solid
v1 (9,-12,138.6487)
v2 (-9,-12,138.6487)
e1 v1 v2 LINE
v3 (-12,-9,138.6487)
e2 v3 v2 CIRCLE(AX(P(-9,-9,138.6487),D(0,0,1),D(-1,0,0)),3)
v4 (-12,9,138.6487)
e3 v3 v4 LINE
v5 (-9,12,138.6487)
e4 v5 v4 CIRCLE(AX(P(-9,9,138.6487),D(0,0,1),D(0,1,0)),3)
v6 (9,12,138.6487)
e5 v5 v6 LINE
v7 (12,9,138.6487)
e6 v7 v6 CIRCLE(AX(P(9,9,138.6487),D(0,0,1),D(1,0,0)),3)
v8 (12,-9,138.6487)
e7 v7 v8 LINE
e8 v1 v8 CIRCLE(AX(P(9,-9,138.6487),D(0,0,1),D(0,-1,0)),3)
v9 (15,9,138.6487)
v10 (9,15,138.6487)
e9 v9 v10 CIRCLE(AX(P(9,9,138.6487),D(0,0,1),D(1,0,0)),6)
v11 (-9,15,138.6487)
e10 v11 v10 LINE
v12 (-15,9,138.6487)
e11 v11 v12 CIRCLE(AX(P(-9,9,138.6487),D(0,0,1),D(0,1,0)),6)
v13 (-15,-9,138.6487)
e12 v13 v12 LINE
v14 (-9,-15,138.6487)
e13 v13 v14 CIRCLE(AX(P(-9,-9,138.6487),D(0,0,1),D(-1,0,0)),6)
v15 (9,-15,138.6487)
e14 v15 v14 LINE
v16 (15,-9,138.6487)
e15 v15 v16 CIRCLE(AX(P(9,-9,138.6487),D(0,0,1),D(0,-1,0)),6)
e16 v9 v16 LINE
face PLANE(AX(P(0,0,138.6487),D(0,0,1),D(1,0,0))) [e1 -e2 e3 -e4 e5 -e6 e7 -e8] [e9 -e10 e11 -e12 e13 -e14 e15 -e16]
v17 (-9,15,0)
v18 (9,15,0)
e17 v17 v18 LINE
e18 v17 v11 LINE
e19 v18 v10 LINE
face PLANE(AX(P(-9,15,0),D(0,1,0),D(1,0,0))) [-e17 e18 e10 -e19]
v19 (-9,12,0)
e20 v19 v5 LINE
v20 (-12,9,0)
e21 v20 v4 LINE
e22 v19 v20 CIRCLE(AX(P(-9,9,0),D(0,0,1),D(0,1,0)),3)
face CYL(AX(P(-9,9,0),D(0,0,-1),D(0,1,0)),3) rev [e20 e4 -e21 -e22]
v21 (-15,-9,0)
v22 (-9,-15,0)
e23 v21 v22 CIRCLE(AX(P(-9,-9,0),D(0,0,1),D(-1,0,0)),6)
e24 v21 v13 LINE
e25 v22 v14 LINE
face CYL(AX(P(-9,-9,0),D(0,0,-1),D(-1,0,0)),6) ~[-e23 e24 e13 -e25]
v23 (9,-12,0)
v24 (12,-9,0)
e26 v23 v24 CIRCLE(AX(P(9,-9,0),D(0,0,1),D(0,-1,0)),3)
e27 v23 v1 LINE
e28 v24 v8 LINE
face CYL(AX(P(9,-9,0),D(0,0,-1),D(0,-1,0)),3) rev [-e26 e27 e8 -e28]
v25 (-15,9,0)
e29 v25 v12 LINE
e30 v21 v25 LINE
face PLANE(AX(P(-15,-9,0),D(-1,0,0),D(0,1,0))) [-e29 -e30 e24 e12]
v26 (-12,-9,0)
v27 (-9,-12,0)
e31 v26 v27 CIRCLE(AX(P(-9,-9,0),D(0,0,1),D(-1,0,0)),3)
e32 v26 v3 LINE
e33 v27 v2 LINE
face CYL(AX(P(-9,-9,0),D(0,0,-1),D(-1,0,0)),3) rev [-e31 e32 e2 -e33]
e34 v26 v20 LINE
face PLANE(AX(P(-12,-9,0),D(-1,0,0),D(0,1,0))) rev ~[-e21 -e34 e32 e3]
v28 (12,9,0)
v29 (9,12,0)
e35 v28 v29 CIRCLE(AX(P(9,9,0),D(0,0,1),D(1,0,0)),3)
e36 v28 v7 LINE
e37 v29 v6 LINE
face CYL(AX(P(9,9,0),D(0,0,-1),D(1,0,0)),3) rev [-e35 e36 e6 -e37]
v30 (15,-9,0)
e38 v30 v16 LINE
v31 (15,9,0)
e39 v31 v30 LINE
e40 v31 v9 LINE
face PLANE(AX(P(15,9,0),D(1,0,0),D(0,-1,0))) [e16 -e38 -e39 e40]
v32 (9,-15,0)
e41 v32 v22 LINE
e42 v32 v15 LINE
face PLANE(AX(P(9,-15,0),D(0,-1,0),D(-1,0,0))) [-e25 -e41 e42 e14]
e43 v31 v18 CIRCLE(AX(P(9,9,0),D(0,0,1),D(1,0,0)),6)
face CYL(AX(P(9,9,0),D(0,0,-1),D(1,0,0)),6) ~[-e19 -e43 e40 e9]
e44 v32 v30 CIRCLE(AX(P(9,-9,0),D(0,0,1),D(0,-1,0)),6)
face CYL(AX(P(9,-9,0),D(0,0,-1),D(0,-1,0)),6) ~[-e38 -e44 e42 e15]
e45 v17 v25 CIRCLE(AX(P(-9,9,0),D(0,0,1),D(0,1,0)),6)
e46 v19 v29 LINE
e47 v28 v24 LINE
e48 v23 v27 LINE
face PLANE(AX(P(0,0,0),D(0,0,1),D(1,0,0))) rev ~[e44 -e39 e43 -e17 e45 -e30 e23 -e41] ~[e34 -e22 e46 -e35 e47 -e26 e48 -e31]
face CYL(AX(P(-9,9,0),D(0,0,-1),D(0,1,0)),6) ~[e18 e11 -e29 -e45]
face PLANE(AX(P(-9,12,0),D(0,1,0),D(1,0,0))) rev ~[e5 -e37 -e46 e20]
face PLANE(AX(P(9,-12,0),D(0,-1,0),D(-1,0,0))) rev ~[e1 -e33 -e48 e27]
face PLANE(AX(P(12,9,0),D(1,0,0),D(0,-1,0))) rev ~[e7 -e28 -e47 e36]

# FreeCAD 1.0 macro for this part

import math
import FreeCAD as App
import Part
import Sketcher
from FreeCAD import Vector
Q = App.Units.Quantity

doc = App.newDocument("Part")
params = doc.addObject("Spreadsheet::Sheet", "Params")
for row, (alias, value) in enumerate([
    ("sketch1_radius", "6 mm"),
    ("sketch1_radius2", "3 mm"),
    ("pad1_length", "138.6487 mm"),
], start=1):
    params.set(f"A{row}", alias)
    params.set(f"B{row}", "=" + value)
    params.setAlias(f"B{row}", alias)

body = doc.addObject("PartDesign::Body", "Body")

# Sketch on XY plane
sketch1 = body.newObject("Sketcher::SketchObject", "Sketch")
sketch1.AttachmentSupport = (doc.getObject("XY_Plane"), [""])
sketch1.MapMode = "FlatFace"
sketch1.addGeometry([
    Part.LineSegment(Vector(-15, 9, 0), Vector(-15, -9, 0)),  # 0
    Part.ArcOfCircle(Part.Circle(Vector(-9, -9, 0), Vector(0, 0, 1), 6), math.radians(180), math.radians(270)),  # 1
    Part.LineSegment(Vector(-9, -15, 0), Vector(9, -15, 0)),  # 2
    Part.ArcOfCircle(Part.Circle(Vector(9, -9, 0), Vector(0, 0, 1), 6), math.radians(-90), math.radians(0)),  # 3
    Part.LineSegment(Vector(15, -9, 0), Vector(15, 9, 0)),  # 4
    Part.ArcOfCircle(Part.Circle(Vector(9, 9, 0), Vector(0, 0, 1), 6), math.radians(0), math.radians(90)),  # 5
    Part.LineSegment(Vector(9, 15, 0), Vector(-9, 15, 0)),  # 6
    Part.ArcOfCircle(Part.Circle(Vector(-9, 9, 0), Vector(0, 0, 1), 6), math.radians(90), math.radians(180)),  # 7
    Part.ArcOfCircle(Part.Circle(Vector(-9, 9, 0), Vector(0, 0, 1), 3), math.radians(90), math.radians(180)),  # 8
    Part.LineSegment(Vector(-9, 12, 0), Vector(9, 12, 0)),  # 9
    Part.ArcOfCircle(Part.Circle(Vector(9, 9, 0), Vector(0, 0, 1), 3), math.radians(0), math.radians(90)),  # 10
    Part.LineSegment(Vector(12, 9, 0), Vector(12, -9, 0)),  # 11
    Part.ArcOfCircle(Part.Circle(Vector(9, -9, 0), Vector(0, 0, 1), 3), math.radians(-90), math.radians(0)),  # 12
    Part.LineSegment(Vector(9, -12, 0), Vector(-9, -12, 0)),  # 13
    Part.ArcOfCircle(Part.Circle(Vector(-9, -9, 0), Vector(0, 0, 1), 3), math.radians(180), math.radians(270)),  # 14
    Part.LineSegment(Vector(-12, -9, 0), Vector(-12, 9, 0)),  # 15
], False)
sketch1.addConstraint([
    Sketcher.Constraint("Tangent", 0, 2, 1, 1),
    Sketcher.Constraint("Tangent", 1, 2, 2, 1),
    Sketcher.Constraint("Tangent", 2, 2, 3, 1),
    Sketcher.Constraint("Tangent", 3, 2, 4, 1),
    Sketcher.Constraint("Tangent", 4, 2, 5, 1),
    Sketcher.Constraint("Tangent", 5, 2, 6, 1),
    Sketcher.Constraint("Tangent", 6, 2, 7, 1),
    Sketcher.Constraint("Tangent", 7, 2, 0, 1),
    Sketcher.Constraint("Tangent", 8, 1, 9, 1),
    Sketcher.Constraint("Tangent", 9, 2, 10, 2),
    Sketcher.Constraint("Tangent", 10, 1, 11, 1),
    Sketcher.Constraint("Tangent", 11, 2, 12, 2),
    Sketcher.Constraint("Tangent", 12, 1, 13, 1),
    Sketcher.Constraint("Tangent", 13, 2, 14, 2),
    Sketcher.Constraint("Tangent", 14, 1, 15, 1),
    Sketcher.Constraint("Tangent", 15, 2, 8, 2),
    Sketcher.Constraint("Vertical", 0),
    Sketcher.Constraint("Horizontal", 2),
    Sketcher.Constraint("Vertical", 4),
    Sketcher.Constraint("Horizontal", 6),
    Sketcher.Constraint("Horizontal", 9),
    Sketcher.Constraint("Vertical", 11),
    Sketcher.Constraint("Horizontal", 13),
    Sketcher.Constraint("Vertical", 15),
    Sketcher.Constraint("Coincident", 8, 3, 7, 3),
    Sketcher.Constraint("Coincident", 10, 3, 5, 3),
    Sketcher.Constraint("Coincident", 12, 3, 3, 3),
    Sketcher.Constraint("Equal", 1, 3),
    Sketcher.Constraint("Equal", 3, 5),
    Sketcher.Constraint("Equal", 5, 7),
    Sketcher.Constraint("Equal", 12, 14),
    Sketcher.Constraint("Symmetric", 1, 3, 5, 3, -1, 1),
    Sketcher.Constraint("Equal", 13, 0),
    Sketcher.Constraint("Radius", 1, Q("6 mm")),
    Sketcher.Constraint("Radius", 8, Q("3 mm")),
    Sketcher.Constraint("DistanceX", 0, 2, -1, 1, Q("15 mm")),
])
sketch1.setExpression("Constraints[33]", "Params.sketch1_radius")
sketch1.setExpression("Constraints[34]", "Params.sketch1_radius2")
pad1 = body.newObject("PartDesign::Pad", "Pad")
pad1.Profile = sketch1
pad1.setExpression("Length", "Params.pad1_length")

doc.recompute()
